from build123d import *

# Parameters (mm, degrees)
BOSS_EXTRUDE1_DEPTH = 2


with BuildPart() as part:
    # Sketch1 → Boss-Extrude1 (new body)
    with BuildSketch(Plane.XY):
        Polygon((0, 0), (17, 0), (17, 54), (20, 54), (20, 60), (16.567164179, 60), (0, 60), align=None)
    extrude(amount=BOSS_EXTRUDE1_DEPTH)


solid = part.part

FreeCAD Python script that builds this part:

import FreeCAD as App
import Part
import Sketcher
Q = App.Units.Quantity


def add_polygon(sketch, points):
    """Adds a closed chain of lines whose ends are joined by coincident constraints."""
    first, n = sketch.GeometryCount, len(points)
    for a, b in zip(points, points[1:] + points[:1]):
        sketch.addGeometry(Part.LineSegment(App.Vector(*a, 0), App.Vector(*b, 0)), False)
    for i in range(n):
        sketch.addConstraint(Sketcher.Constraint("Coincident", first + i, 2, first + (i + 1) % n, 1))

doc = App.newDocument("Part")
body = doc.addObject("PartDesign::Body", "Body")

# Sketch on XY plane
sketch1 = body.newObject("Sketcher::SketchObject", "Sketch")
sketch1.AttachmentSupport = (doc.getObject("XY_Plane"), [""])
sketch1.MapMode = "FlatFace"
add_polygon(sketch1, [(0, 0), (17, 0), (17, 54), (20, 54), (20, 60), (0, 60)])  # lines 0-5
sketch1.addConstraint([
    Sketcher.Constraint("Horizontal", 0),
    Sketcher.Constraint("Vertical", 1),
    Sketcher.Constraint("Horizontal", 2),
    Sketcher.Constraint("Vertical", 3),
    Sketcher.Constraint("Horizontal", 4),
    Sketcher.Constraint("Vertical", 5),
    Sketcher.Constraint("Coincident", 5, 2, -1, 1),
    Sketcher.Constraint("DistanceX", 0, 1, 0, 2, Q("17 mm")),
    Sketcher.Constraint("DistanceX", 2, 1, 2, 2, Q("3 mm")),
    Sketcher.Constraint("DistanceY", 1, 1, 1, 2, Q("54 mm")),
    Sketcher.Constraint("DistanceY", 3, 1, 3, 2, Q("6 mm")),
])
pad1 = body.newObject("PartDesign::Pad", "Pad")
pad1.Profile = sketch1
pad1.Length = 2

doc.recompute()
